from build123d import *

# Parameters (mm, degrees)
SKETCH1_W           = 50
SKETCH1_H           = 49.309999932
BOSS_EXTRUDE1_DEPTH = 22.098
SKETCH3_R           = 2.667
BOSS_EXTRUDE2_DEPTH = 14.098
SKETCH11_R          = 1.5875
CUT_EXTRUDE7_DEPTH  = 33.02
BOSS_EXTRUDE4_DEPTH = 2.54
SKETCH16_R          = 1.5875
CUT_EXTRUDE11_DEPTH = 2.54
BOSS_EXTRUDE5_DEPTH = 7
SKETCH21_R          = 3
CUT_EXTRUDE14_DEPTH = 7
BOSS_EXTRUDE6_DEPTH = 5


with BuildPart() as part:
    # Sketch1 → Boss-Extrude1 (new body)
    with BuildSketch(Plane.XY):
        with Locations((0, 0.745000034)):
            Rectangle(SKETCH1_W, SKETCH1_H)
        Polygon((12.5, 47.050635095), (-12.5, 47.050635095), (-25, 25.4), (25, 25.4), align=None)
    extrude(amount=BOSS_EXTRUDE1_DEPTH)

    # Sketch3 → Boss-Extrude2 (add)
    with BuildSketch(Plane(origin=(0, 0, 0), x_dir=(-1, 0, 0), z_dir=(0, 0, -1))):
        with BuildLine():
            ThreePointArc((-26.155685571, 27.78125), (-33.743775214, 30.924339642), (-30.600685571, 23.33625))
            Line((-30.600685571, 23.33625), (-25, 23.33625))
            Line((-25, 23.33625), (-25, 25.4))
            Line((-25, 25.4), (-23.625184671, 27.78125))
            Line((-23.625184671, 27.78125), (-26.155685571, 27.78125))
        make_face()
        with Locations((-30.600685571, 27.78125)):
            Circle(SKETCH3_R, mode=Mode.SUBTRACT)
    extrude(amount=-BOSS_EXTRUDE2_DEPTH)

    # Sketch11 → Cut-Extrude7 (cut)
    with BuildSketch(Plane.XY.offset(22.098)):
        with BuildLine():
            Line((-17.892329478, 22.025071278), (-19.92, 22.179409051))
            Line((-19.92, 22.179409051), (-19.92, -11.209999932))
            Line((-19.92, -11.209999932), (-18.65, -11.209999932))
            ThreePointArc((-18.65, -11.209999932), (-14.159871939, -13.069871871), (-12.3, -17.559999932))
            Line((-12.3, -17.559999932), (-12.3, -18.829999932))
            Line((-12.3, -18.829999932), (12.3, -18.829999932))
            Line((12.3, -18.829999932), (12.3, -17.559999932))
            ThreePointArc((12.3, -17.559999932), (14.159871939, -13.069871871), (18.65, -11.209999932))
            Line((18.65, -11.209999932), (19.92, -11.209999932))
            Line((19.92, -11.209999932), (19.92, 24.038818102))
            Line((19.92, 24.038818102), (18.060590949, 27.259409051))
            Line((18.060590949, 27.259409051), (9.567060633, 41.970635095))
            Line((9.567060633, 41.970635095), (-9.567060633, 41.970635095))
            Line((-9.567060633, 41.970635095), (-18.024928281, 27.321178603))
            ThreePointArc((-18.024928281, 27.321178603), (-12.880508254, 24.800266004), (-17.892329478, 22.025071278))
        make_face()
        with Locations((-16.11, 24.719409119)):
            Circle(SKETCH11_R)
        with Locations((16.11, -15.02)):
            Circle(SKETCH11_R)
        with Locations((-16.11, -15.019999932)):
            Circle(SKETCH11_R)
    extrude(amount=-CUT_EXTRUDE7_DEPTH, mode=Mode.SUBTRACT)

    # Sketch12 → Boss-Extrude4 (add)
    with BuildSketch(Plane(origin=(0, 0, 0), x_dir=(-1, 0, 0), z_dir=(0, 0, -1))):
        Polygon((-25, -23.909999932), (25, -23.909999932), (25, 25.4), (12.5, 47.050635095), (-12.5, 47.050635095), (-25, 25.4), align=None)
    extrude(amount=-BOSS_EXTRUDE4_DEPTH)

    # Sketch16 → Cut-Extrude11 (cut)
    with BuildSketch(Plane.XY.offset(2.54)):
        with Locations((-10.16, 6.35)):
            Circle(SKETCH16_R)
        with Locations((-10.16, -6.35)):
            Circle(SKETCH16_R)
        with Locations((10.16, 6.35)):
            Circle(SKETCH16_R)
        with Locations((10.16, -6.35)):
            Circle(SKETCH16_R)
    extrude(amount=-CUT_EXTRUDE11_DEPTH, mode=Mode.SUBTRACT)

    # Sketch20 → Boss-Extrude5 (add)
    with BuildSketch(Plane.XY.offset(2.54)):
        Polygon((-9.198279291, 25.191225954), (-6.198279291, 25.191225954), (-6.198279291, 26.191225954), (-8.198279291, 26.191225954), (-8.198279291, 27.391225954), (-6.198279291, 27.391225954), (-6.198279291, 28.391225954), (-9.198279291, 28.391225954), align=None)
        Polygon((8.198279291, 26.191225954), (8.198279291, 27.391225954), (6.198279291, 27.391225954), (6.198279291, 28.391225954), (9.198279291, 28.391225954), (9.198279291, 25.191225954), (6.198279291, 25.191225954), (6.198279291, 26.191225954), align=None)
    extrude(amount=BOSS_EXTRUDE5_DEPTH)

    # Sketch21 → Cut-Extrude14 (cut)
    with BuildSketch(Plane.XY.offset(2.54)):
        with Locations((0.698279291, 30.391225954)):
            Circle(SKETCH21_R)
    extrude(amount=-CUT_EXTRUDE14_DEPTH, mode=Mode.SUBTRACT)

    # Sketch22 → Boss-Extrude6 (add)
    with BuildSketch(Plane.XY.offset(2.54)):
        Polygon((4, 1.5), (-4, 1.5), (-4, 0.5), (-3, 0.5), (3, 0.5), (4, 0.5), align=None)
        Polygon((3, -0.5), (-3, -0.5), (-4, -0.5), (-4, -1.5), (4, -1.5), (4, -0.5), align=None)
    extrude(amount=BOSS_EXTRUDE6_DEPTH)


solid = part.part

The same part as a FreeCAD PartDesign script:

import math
import FreeCAD as App
import Part
import Sketcher
Q = App.Units.Quantity

doc = App.newDocument("Part")
params = doc.addObject("Spreadsheet::Sheet", "Params")
for row, (alias, value) in enumerate([
    ("sketch1_width", "50 mm"),
    ("sketch1_width2", "25 mm"),
    ("sketch1_height", "49.31 mm"),
    ("pad1_length", "22.098 mm"),
    ("pad2_length", "14.098 mm"),
    ("sketch3_radius", "6.35 mm"),
    ("sketch3_width", "24.6 mm"),
    ("sketch3_width2", "1.27 mm"),
    ("pocket1_length", "33.02 mm"),
    ("sketch4_width", "50 mm"),
    ("sketch4_width2", "25 mm"),
    ("sketch4_height", "49.31 mm"),
    ("pad3_length", "2.54 mm"),
    ("pocket2_length", "2.54 mm"),
    ("sketch6_width", "3 mm"),
    ("sketch6_width2", "2 mm"),
    ("sketch6_height", "1 mm"),
    ("sketch6_height2", "1.2 mm"),
    ("pad4_length", "7 mm"),
    ("sketch7_diameter", "6 mm"),
    ("pocket3_length", "7 mm"),
    ("sketch8_width", "8 mm"),
    ("sketch8_height", "1 mm"),
    ("pad5_length", "5 mm"),
], start=1):
    params.set(f"A{row}", alias)
    params.set(f"B{row}", "=" + value)
    params.setAlias(f"B{row}", alias)

body = doc.addObject("PartDesign::Body", "Body")

# Sketch on XY plane
sketch1 = body.newObject("Sketcher::SketchObject", "Sketch")
sketch1.AttachmentSupport = (doc.getObject("XY_Plane"), [""])
sketch1.MapMode = "FlatFace"
sketch1.addGeometry([
    Part.LineSegment(App.Vector(-25, 25, 0), App.Vector(-25, -24, 0)),  # 0
    Part.LineSegment(App.Vector(-25, -24, 0), App.Vector(25, -24, 0)),  # 1
    Part.LineSegment(App.Vector(25, -24, 0), App.Vector(25, 25, 0)),  # 2
    Part.LineSegment(App.Vector(25, 25, 0), App.Vector(12, 47, 0)),  # 3
    Part.LineSegment(App.Vector(12, 47, 0), App.Vector(-12, 47, 0)),  # 4
    Part.LineSegment(App.Vector(-12, 47, 0), App.Vector(-25, 25, 0)),  # 5
], False)
sketch1.addConstraint([
    Sketcher.Constraint("Coincident", 0, 2, 1, 1),
    Sketcher.Constraint("Coincident", 1, 2, 2, 1),
    Sketcher.Constraint("Coincident", 2, 2, 3, 1),
    Sketcher.Constraint("Coincident", 3, 2, 4, 1),
    Sketcher.Constraint("Coincident", 4, 2, 5, 1),
    Sketcher.Constraint("Coincident", 5, 2, 0, 1),
    Sketcher.Constraint("Vertical", 0),
    Sketcher.Constraint("Horizontal", 1),
    Sketcher.Constraint("Vertical", 2),
    Sketcher.Constraint("Horizontal", 4),
    Sketcher.Constraint("Symmetric", 2, 2, 5, 2, -2),
    Sketcher.Constraint("Equal", 3, 5),
    Sketcher.Constraint("DistanceX", 1, 1, 1, 2, Q("50 mm")),
    Sketcher.Constraint("DistanceX", 4, 2, 4, 1, Q("25 mm")),
    Sketcher.Constraint("Angle", 3, Q("120 deg")),
    Sketcher.Constraint("DistanceY", 0, 2, 0, 1, Q("49.31 mm")),
    Sketcher.Constraint("DistanceY", -1, 1, 2, 2, Q("25.4 mm")),
])
sketch1.setExpression("Constraints[12]", "Params.sketch1_width")
sketch1.setExpression("Constraints[13]", "Params.sketch1_width2")
sketch1.setExpression("Constraints[15]", "Params.sketch1_height")
pad1 = body.newObject("PartDesign::Pad", "Pad")
pad1.Profile = sketch1
pad1.setExpression("Length", "Params.pad1_length")

# Sketch on XY plane
sketch2 = body.newObject("Sketcher::SketchObject", "Sketch001")
sketch2.AttachmentSupport = (doc.getObject("XY_Plane"), [""])
sketch2.MapMode = "FlatFace"
sketch2.addGeometry([
    Part.ArcOfCircle(Part.Circle(App.Vector(30.6, 27.8, 0), App.Vector(0, 0, 1), 4.4), math.radians(-90), math.radians(180)),  # 0
    Part.LineSegment(App.Vector(30.6, 23.3, 0), App.Vector(25, 23.3, 0)),  # 1
    Part.LineSegment(App.Vector(25, 23.3, 0), App.Vector(25, 25.4, 0)),  # 2
    Part.LineSegment(App.Vector(25, 25.4, 0), App.Vector(23.6, 27.8, 0)),  # 3
    Part.LineSegment(App.Vector(23.6, 27.8, 0), App.Vector(26.2, 27.8, 0)),  # 4
    Part.Circle(App.Vector(30.6, 27.8, 0), App.Vector(0, 0, 1), 2.7),  # 5
], False)
sketch2.addConstraint([
    Sketcher.Constraint("Tangent", 0, 1, 1, 1),
    Sketcher.Constraint("Coincident", 1, 2, 2, 1),
    Sketcher.Constraint("Coincident", 2, 2, 3, 1),
    Sketcher.Constraint("Coincident", 3, 2, 4, 1),
    Sketcher.Constraint("Coincident", 4, 2, 0, 2),
    Sketcher.Constraint("Horizontal", 1),
    Sketcher.Constraint("Vertical", 2),
    Sketcher.Constraint("Horizontal", 4),
    Sketcher.Constraint("Coincident", 5, 3, 0, 3),
    Sketcher.Constraint("Horizontal", 5, 3, 3, 2),
    Sketcher.Constraint("Angle", 3, Q("120 deg")),
    Sketcher.Constraint("Diameter", 5, Q("5.334 mm")),
    Sketcher.Constraint("DistanceX", -1, 1, 1, 2, Q("25 mm")),
    Sketcher.Constraint("Radius", 0, Q("4.445 mm")),
    Sketcher.Constraint("DistanceY", -1, 1, 2, 2, Q("25.4 mm")),
    Sketcher.Constraint("DistanceX", 4, 1, 4, 2, Q("2.530501 mm")),
    Sketcher.Constraint("DistanceY", 2, 1, 2, 2, Q("2.06375 mm")),
])
pad2 = body.newObject("PartDesign::Pad", "Pad001")
pad2.Profile = sketch2
pad2.setExpression("Length", "Params.pad2_length")

# Sketch on XY plane
sketch3 = body.newObject("Sketcher::SketchObject", "Sketch002")
sketch3.AttachmentSupport = (doc.getObject("XY_Plane"), [""])
sketch3.MapMode = "FlatFace"
sketch3.AttachmentOffset = App.Placement(App.Vector(0, 0, 22.098), App.Rotation())
sketch3.addGeometry([
    Part.LineSegment(App.Vector(-17.9, 22, 0), App.Vector(-19.9, 22.2, 0)),  # 0
    Part.LineSegment(App.Vector(-19.9, 22.2, 0), App.Vector(-19.9, -11.2, 0)),  # 1
    Part.LineSegment(App.Vector(-19.9, -11.2, 0), App.Vector(-18.6, -11.2, 0)),  # 2
    Part.ArcOfCircle(Part.Circle(App.Vector(-18.6, -17.6, 0), App.Vector(0, 0, 1), 6.3), math.radians(0), math.radians(90)),  # 3
    Part.LineSegment(App.Vector(-12.3, -17.6, 0), App.Vector(-12.3, -18.8, 0)),  # 4
    Part.LineSegment(App.Vector(-12.3, -18.8, 0), App.Vector(12.3, -18.8, 0)),  # 5
    Part.LineSegment(App.Vector(12.3, -18.8, 0), App.Vector(12.3, -17.6, 0)),  # 6
    Part.ArcOfCircle(Part.Circle(App.Vector(18.6, -17.6, 0), App.Vector(0, 0, 1), 6.3), math.radians(90), math.radians(180)),  # 7
    Part.LineSegment(App.Vector(18.6, -11.2, 0), App.Vector(19.9, -11.2, 0)),  # 8
    Part.LineSegment(App.Vector(19.9, -11.2, 0), App.Vector(19.9, 24, 0)),  # 9
    Part.LineSegment(App.Vector(19.9, 24, 0), App.Vector(18.1, 27.3, 0)),  # 10
    Part.LineSegment(App.Vector(18.1, 27.3, 0), App.Vector(9.6, 42, 0)),  # 11
    Part.LineSegment(App.Vector(9.6, 42, 0), App.Vector(-9.6, 42, 0)),  # 12
    Part.LineSegment(App.Vector(-9.6, 42, 0), App.Vector(-18, 27.3, 0)),  # 13
    Part.ArcOfCircle(Part.Circle(App.Vector(-16.1, 24.7, 0), App.Vector(0, 0, 1), 3.2), math.radians(-123), math.radians(126)),  # 14
    Part.Circle(App.Vector(-16.1, 24.7, 0), App.Vector(0, 0, 1), 1.6),  # 15
    Part.Circle(App.Vector(16.1, -15, 0), App.Vector(0, 0, 1), 1.6),  # 16
    Part.Circle(App.Vector(-16.1, -15, 0), App.Vector(0, 0, 1), 1.6),  # 17
], False)
sketch3.addConstraint([
    Sketcher.Constraint("Coincident", 0, 2, 1, 1),
    Sketcher.Constraint("Coincident", 1, 2, 2, 1),
    Sketcher.Constraint("Tangent", 2, 2, 3, 2),
    Sketcher.Constraint("Tangent", 3, 1, 4, 1),
    Sketcher.Constraint("Coincident", 4, 2, 5, 1),
    Sketcher.Constraint("Coincident", 5, 2, 6, 1),
    Sketcher.Constraint("Tangent", 6, 2, 7, 2),
    Sketcher.Constraint("Tangent", 7, 1, 8, 1),
    Sketcher.Constraint("Coincident", 8, 2, 9, 1),
    Sketcher.Constraint("Coincident", 9, 2, 10, 1),
    Sketcher.Constraint("Coincident", 10, 2, 11, 1),
    Sketcher.Constraint("Coincident", 11, 2, 12, 1),
    Sketcher.Constraint("Coincident", 12, 2, 13, 1),
    Sketcher.Constraint("Coincident", 13, 2, 14, 2),
    Sketcher.Constraint("Coincident", 14, 1, 0, 1),
    Sketcher.Constraint("Vertical", 1),
    Sketcher.Constraint("Horizontal", 2),
    Sketcher.Constraint("Vertical", 4),
    Sketcher.Constraint("Horizontal", 5),
    Sketcher.Constraint("Vertical", 6),
    Sketcher.Constraint("Horizontal", 8),
    Sketcher.Constraint("Vertical", 9),
    Sketcher.Constraint("Horizontal", 12),
    Sketcher.Constraint("Coincident", 15, 3, 14, 3),
    Sketcher.Constraint("Equal", 3, 7),
    Sketcher.Constraint("Equal", 15, 16),
    Sketcher.Constraint("Equal", 16, 17),
    Sketcher.Constraint("Symmetric", 3, 3, 7, 3, -2),
    Sketcher.Constraint("Symmetric", 16, 3, 17, 3, -2),
    Sketcher.Constraint("Parallel", 10, 11),
    Sketcher.Constraint("Vertical", 15, 3, 17, 3),
    Sketcher.Constraint("Equal", 2, 8),
    Sketcher.Constraint("Equal", 8, 4),
    Sketcher.Constraint("Angle", 10, Q("120 deg")),
    Sketcher.Constraint("Angle", 13, Q("-120 deg")),
    Sketcher.Constraint("Radius", 3, Q("6.35 mm")),
    Sketcher.Constraint("Diameter", 15, Q("3.175 mm")),
    Sketcher.Constraint("DistanceX", 5, 1, 5, 2, Q("24.6 mm")),
    Sketcher.Constraint("DistanceX", 2, 1, 2, 2, Q("1.27 mm")),
    Sketcher.Constraint("DistanceY", 3, 3, -1, 1, Q("17.56 mm")),
    Sketcher.Constraint("DistanceX", 14, 3, -1, 1, Q("16.11 mm")),
    Sketcher.Constraint("DistanceY", 16, 3, -1, 1, Q("15.02 mm")),
    Sketcher.Constraint("DistanceY", 0, 2, 14, 3, Q("2.54 mm")),
    Sketcher.Constraint("DistanceY", 14, 3, 10, 2, Q("2.54 mm")),
    Sketcher.Constraint("Radius", 14, Q("3.230504 mm")),
    Sketcher.Constraint("DistanceX", 12, 2, 12, 1, Q("19.134121 mm")),
    Sketcher.Constraint("DistanceY", 1, 2, 1, 1, Q("33.389409 mm")),
    Sketcher.Constraint("DistanceY", 9, 1, 9, 2, Q("35.248818 mm")),
    Sketcher.Constraint("DistanceX", 13, 2, 14, 1, Q("0.132599 mm")),
    Sketcher.Constraint("Distance", 11, Q("16.987061 mm")),
])
sketch3.setExpression("Constraints[35]", "Params.sketch3_radius")
sketch3.setExpression("Constraints[37]", "Params.sketch3_width")
sketch3.setExpression("Constraints[38]", "Params.sketch3_width2")
pocket1 = body.newObject("PartDesign::Pocket", "Pocket")
pocket1.Profile = sketch3
pocket1.setExpression("Length", "Params.pocket1_length")

# Sketch on XY plane
sketch4 = body.newObject("Sketcher::SketchObject", "Sketch003")
sketch4.AttachmentSupport = (doc.getObject("XY_Plane"), [""])
sketch4.MapMode = "FlatFace"
sketch4.addGeometry([
    Part.LineSegment(App.Vector(25, -24, 0), App.Vector(-25, -24, 0)),  # 0
    Part.LineSegment(App.Vector(-25, -24, 0), App.Vector(-25, 25, 0)),  # 1
    Part.LineSegment(App.Vector(-25, 25, 0), App.Vector(-12, 47, 0)),  # 2
    Part.LineSegment(App.Vector(-12, 47, 0), App.Vector(12, 47, 0)),  # 3
    Part.LineSegment(App.Vector(12, 47, 0), App.Vector(25, 25, 0)),  # 4
    Part.LineSegment(App.Vector(25, 25, 0), App.Vector(25, -24, 0)),  # 5
], False)
sketch4.addConstraint([
    Sketcher.Constraint("Coincident", 0, 2, 1, 1),
    Sketcher.Constraint("Coincident", 1, 2, 2, 1),
    Sketcher.Constraint("Coincident", 2, 2, 3, 1),
    Sketcher.Constraint("Coincident", 3, 2, 4, 1),
    Sketcher.Constraint("Coincident", 4, 2, 5, 1),
    Sketcher.Constraint("Coincident", 5, 2, 0, 1),
    Sketcher.Constraint("Horizontal", 0),
    Sketcher.Constraint("Vertical", 1),
    Sketcher.Constraint("Horizontal", 3),
    Sketcher.Constraint("Vertical", 5),
    Sketcher.Constraint("Symmetric", 1, 2, 4, 2, -2),
    Sketcher.Constraint("Equal", 2, 4),
    Sketcher.Constraint("DistanceX", 0, 2, 0, 1, Q("50 mm")),
    Sketcher.Constraint("DistanceX", 3, 1, 3, 2, Q("25 mm")),
    Sketcher.Constraint("Angle", 2, Q("60 deg")),
    Sketcher.Constraint("DistanceY", 1, 1, 1, 2, Q("49.31 mm")),
    Sketcher.Constraint("DistanceY", -1, 1, 1, 2, Q("25.4 mm")),
])
sketch4.setExpression("Constraints[12]", "Params.sketch4_width")
sketch4.setExpression("Constraints[13]", "Params.sketch4_width2")
sketch4.setExpression("Constraints[15]", "Params.sketch4_height")
pad3 = body.newObject("PartDesign::Pad", "Pad002")
pad3.Profile = sketch4
pad3.setExpression("Length", "Params.pad3_length")

# Sketch on XY plane
sketch5 = body.newObject("Sketcher::SketchObject", "Sketch004")
sketch5.AttachmentSupport = (doc.getObject("XY_Plane"), [""])
sketch5.MapMode = "FlatFace"
sketch5.AttachmentOffset = App.Placement(App.Vector(0, 0, 2.54), App.Rotation())
sketch5.addGeometry([
    Part.Circle(App.Vector(-10.2, 6.3, 0), App.Vector(0, 0, 1), 1.6),
    Part.Circle(App.Vector(-10.2, -6.3, 0), App.Vector(0, 0, 1), 1.6),
    Part.Circle(App.Vector(10.2, 6.3, 0), App.Vector(0, 0, 1), 1.6),
    Part.Circle(App.Vector(10.2, -6.3, 0), App.Vector(0, 0, 1), 1.6),
], False)
sketch5.addConstraint([
    Sketcher.Constraint("Equal", 0, 1),
    Sketcher.Constraint("Equal", 1, 2),
    Sketcher.Constraint("Equal", 2, 3),
    Sketcher.Constraint("Symmetric", 1, 3, 2, 3, -1, 1),
    Sketcher.Constraint("Symmetric", 0, 3, 3, 3, -1, 1),
    Sketcher.Constraint("Symmetric", 0, 3, 2, 3, -2),
    Sketcher.Constraint("Diameter", 0, Q("3.175 mm")),
    Sketcher.Constraint("DistanceY", 1, 3, 0, 3, Q("12.7 mm")),
    Sketcher.Constraint("DistanceX", 0, 3, -1, 1, Q("10.16 mm")),
])
pocket2 = body.newObject("PartDesign::Pocket", "Pocket001")
pocket2.Profile = sketch5
pocket2.setExpression("Length", "Params.pocket2_length")

# Sketch on XY plane
sketch6 = body.newObject("Sketcher::SketchObject", "Sketch005")
sketch6.AttachmentSupport = (doc.getObject("XY_Plane"), [""])
sketch6.MapMode = "FlatFace"
sketch6.AttachmentOffset = App.Placement(App.Vector(0, 0, 2.54), App.Rotation())
sketch6.addGeometry([
    Part.LineSegment(App.Vector(-9.2, 25.2, 0), App.Vector(-6.2, 25.2, 0)),  # 0
    Part.LineSegment(App.Vector(-6.2, 25.2, 0), App.Vector(-6.2, 26.2, 0)),  # 1
    Part.LineSegment(App.Vector(-6.2, 26.2, 0), App.Vector(-8.2, 26.2, 0)),  # 2
    Part.LineSegment(App.Vector(-8.2, 26.2, 0), App.Vector(-8.2, 27.4, 0)),  # 3
    Part.LineSegment(App.Vector(-8.2, 27.4, 0), App.Vector(-6.2, 27.4, 0)),  # 4
    Part.LineSegment(App.Vector(-6.2, 27.4, 0), App.Vector(-6.2, 28.4, 0)),  # 5
    Part.LineSegment(App.Vector(-6.2, 28.4, 0), App.Vector(-9.2, 28.4, 0)),  # 6
    Part.LineSegment(App.Vector(-9.2, 28.4, 0), App.Vector(-9.2, 25.2, 0)),  # 7
    Part.LineSegment(App.Vector(8.2, 27.4, 0), App.Vector(8.2, 26.2, 0)),  # 8
    Part.LineSegment(App.Vector(8.2, 26.2, 0), App.Vector(6.2, 26.2, 0)),  # 9
    Part.LineSegment(App.Vector(6.2, 26.2, 0), App.Vector(6.2, 25.2, 0)),  # 10
    Part.LineSegment(App.Vector(6.2, 25.2, 0), App.Vector(9.2, 25.2, 0)),  # 11
    Part.LineSegment(App.Vector(9.2, 25.2, 0), App.Vector(9.2, 28.4, 0)),  # 12
    Part.LineSegment(App.Vector(9.2, 28.4, 0), App.Vector(6.2, 28.4, 0)),  # 13
    Part.LineSegment(App.Vector(6.2, 28.4, 0), App.Vector(6.2, 27.4, 0)),  # 14
    Part.LineSegment(App.Vector(6.2, 27.4, 0), App.Vector(8.2, 27.4, 0)),  # 15
], False)
sketch6.addConstraint([
    Sketcher.Constraint("Coincident", 0, 2, 1, 1),
    Sketcher.Constraint("Coincident", 1, 2, 2, 1),
    Sketcher.Constraint("Coincident", 2, 2, 3, 1),
    Sketcher.Constraint("Coincident", 3, 2, 4, 1),
    Sketcher.Constraint("Coincident", 4, 2, 5, 1),
    Sketcher.Constraint("Coincident", 5, 2, 6, 1),
    Sketcher.Constraint("Coincident", 6, 2, 7, 1),
    Sketcher.Constraint("Coincident", 7, 2, 0, 1),
    Sketcher.Constraint("Coincident", 8, 2, 9, 1),
    Sketcher.Constraint("Coincident", 9, 2, 10, 1),
    Sketcher.Constraint("Coincident", 10, 2, 11, 1),
    Sketcher.Constraint("Coincident", 11, 2, 12, 1),
    Sketcher.Constraint("Coincident", 12, 2, 13, 1),
    Sketcher.Constraint("Coincident", 13, 2, 14, 1),
    Sketcher.Constraint("Coincident", 14, 2, 15, 1),
    Sketcher.Constraint("Coincident", 15, 2, 8, 1),
    Sketcher.Constraint("Horizontal", 0),
    Sketcher.Constraint("Vertical", 1),
    Sketcher.Constraint("Horizontal", 2),
    Sketcher.Constraint("Vertical", 3),
    Sketcher.Constraint("Horizontal", 4),
    Sketcher.Constraint("Vertical", 5),
    Sketcher.Constraint("Horizontal", 6),
    Sketcher.Constraint("Vertical", 7),
    Sketcher.Constraint("Vertical", 8),
    Sketcher.Constraint("Horizontal", 9),
    Sketcher.Constraint("Vertical", 10),
    Sketcher.Constraint("Horizontal", 11),
    Sketcher.Constraint("Vertical", 12),
    Sketcher.Constraint("Horizontal", 13),
    Sketcher.Constraint("Vertical", 14),
    Sketcher.Constraint("Horizontal", 15),
    Sketcher.Constraint("Symmetric", 2, 2, 8, 2, -2),
    Sketcher.Constraint("Symmetric", 0, 2, 10, 2, -2),
    Sketcher.Constraint("Symmetric", 6, 2, 12, 2, -2),
    Sketcher.Constraint("Symmetric", 4, 2, 14, 2, -2),
    Sketcher.Constraint("Vertical", 1, 2, 4, 2),
    Sketcher.Constraint("Equal", 1, 5),
    Sketcher.Constraint("DistanceX", 0, 1, 0, 2, Q("3 mm")),
    Sketcher.Constraint("DistanceX", 2, 2, 2, 1, Q("2 mm")),
    Sketcher.Constraint("DistanceY", 1, 1, 1, 2, Q("1 mm")),
    Sketcher.Constraint("DistanceY", 3, 1, 3, 2, Q("1.2 mm")),
    Sketcher.Constraint("DistanceX", 0, 2, -1, 1, Q("6.198279 mm")),
    Sketcher.Constraint("DistanceY", -1, 1, 0, 2, Q("25.191226 mm")),
])
sketch6.setExpression("Constraints[38]", "Params.sketch6_width")
sketch6.setExpression("Constraints[39]", "Params.sketch6_width2")
sketch6.setExpression("Constraints[40]", "Params.sketch6_height")
sketch6.setExpression("Constraints[41]", "Params.sketch6_height2")
pad4 = body.newObject("PartDesign::Pad", "Pad003")
pad4.Profile = sketch6
pad4.setExpression("Length", "Params.pad4_length")

# Sketch on XY plane
sketch7 = body.newObject("Sketcher::SketchObject", "Sketch006")
sketch7.AttachmentSupport = (doc.getObject("XY_Plane"), [""])
sketch7.MapMode = "FlatFace"
sketch7.AttachmentOffset = App.Placement(App.Vector(0, 0, 2.54), App.Rotation())
sketch7.addGeometry(Part.Circle(App.Vector(0.7, 30.4, 0), App.Vector(0, 0, 1), 3), False)
sketch7.addConstraint([
    Sketcher.Constraint("Diameter", 0, Q("6 mm")),
    Sketcher.Constraint("DistanceX", -1, 1, 0, 3, Q("0.698279 mm")),
    Sketcher.Constraint("DistanceY", -1, 1, 0, 3, Q("30.391226 mm")),
])
sketch7.setExpression("Constraints[0]", "Params.sketch7_diameter")
pocket3 = body.newObject("PartDesign::Pocket", "Pocket002")
pocket3.Profile = sketch7
pocket3.setExpression("Length", "Params.pocket3_length")

# Sketch on XY plane
sketch8 = body.newObject("Sketcher::SketchObject", "Sketch007")
sketch8.AttachmentSupport = (doc.getObject("XY_Plane"), [""])
sketch8.MapMode = "FlatFace"
sketch8.AttachmentOffset = App.Placement(App.Vector(0, 0, 2.54), App.Rotation())
sketch8.addGeometry([
    Part.LineSegment(App.Vector(4, 1.5, 0), App.Vector(-4, 1.5, 0)),  # 0
    Part.LineSegment(App.Vector(-4, 1.5, 0), App.Vector(-4, 0.5, 0)),  # 1
    Part.LineSegment(App.Vector(-4, 0.5, 0), App.Vector(4, 0.5, 0)),  # 2
    Part.LineSegment(App.Vector(4, 0.5, 0), App.Vector(4, 1.5, 0)),  # 3
    Part.LineSegment(App.Vector(-4, -0.5, 0), App.Vector(-4, -1.5, 0)),  # 4
    Part.LineSegment(App.Vector(-4, -1.5, 0), App.Vector(4, -1.5, 0)),  # 5
    Part.LineSegment(App.Vector(4, -1.5, 0), App.Vector(4, -0.5, 0)),  # 6
    Part.LineSegment(App.Vector(4, -0.5, 0), App.Vector(-4, -0.5, 0)),  # 7
], False)
sketch8.addConstraint([
    Sketcher.Constraint("Coincident", 0, 2, 1, 1),
    Sketcher.Constraint("Coincident", 1, 2, 2, 1),
    Sketcher.Constraint("Coincident", 2, 2, 3, 1),
    Sketcher.Constraint("Coincident", 3, 2, 0, 1),
    Sketcher.Constraint("Coincident", 4, 2, 5, 1),
    Sketcher.Constraint("Coincident", 5, 2, 6, 1),
    Sketcher.Constraint("Coincident", 6, 2, 7, 1),
    Sketcher.Constraint("Coincident", 7, 2, 4, 1),
    Sketcher.Constraint("Horizontal", 0),
    Sketcher.Constraint("Vertical", 1),
    Sketcher.Constraint("Horizontal", 2),
    Sketcher.Constraint("Vertical", 3),
    Sketcher.Constraint("Vertical", 4),
    Sketcher.Constraint("Horizontal", 5),
    Sketcher.Constraint("Vertical", 6),
    Sketcher.Constraint("Horizontal", 7),
    Sketcher.Constraint("Symmetric", 3, 2, 4, 2, -1, 1),
    Sketcher.Constraint("Symmetric", 1, 2, 6, 2, -1, 1),
    Sketcher.Constraint("Vertical", 1, 2, 4, 2),
    Sketcher.Constraint("DistanceX", 0, 2, 0, 1, Q("8 mm")),
    Sketcher.Constraint("DistanceY", 1, 2, 1, 1, Q("1 mm")),
    Sketcher.Constraint("DistanceY", 4, 2, 1, 2, Q("2 mm")),
])
sketch8.setExpression("Constraints[19]", "Params.sketch8_width")
sketch8.setExpression("Constraints[20]", "Params.sketch8_height")
pad5 = body.newObject("PartDesign::Pad", "Pad004")
pad5.Profile = sketch8
pad5.setExpression("Length", "Params.pad5_length")

doc.recompute()
